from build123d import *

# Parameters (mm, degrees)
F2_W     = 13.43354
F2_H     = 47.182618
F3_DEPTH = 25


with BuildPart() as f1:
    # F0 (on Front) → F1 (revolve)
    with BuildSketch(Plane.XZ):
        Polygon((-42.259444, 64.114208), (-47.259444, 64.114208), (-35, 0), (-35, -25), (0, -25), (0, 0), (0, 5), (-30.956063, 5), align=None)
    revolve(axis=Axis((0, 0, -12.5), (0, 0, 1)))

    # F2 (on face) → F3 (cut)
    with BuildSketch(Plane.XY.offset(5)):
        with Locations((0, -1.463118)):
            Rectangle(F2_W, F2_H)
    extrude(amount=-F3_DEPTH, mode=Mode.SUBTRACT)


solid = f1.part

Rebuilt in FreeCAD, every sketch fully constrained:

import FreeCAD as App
import Part
import Sketcher
from FreeCAD import Vector
Q = App.Units.Quantity

doc = App.newDocument("Part")
body = doc.addObject("PartDesign::Body", "Body")

# Sketch on XZ plane
sketch1 = body.newObject("Sketcher::SketchObject", "Sketch")
sketch1.AttachmentSupport = (doc.getObject("XZ_Plane"), [""])
sketch1.MapMode = "FlatFace"
sketch1.addGeometry(Part.LineSegment(Vector(-42.259444, 64.114208, 0), Vector(-47.259444, 64.114208, 0)), False)
sketch1.addGeometry(Part.LineSegment(Vector(-47.259444, 64.114208, 0), Vector(-35, 0, 0)), False)
sketch1.addGeometry(Part.LineSegment(Vector(-35, 0, 0), Vector(-35, -25, 0)), False)
sketch1.addGeometry(Part.LineSegment(Vector(-35, -25, 0), Vector(0, -25, 0)), False)
sketch1.addGeometry(Part.LineSegment(Vector(0, -25, 0), Vector(0, 5, 0)), False)
sketch1.addGeometry(Part.LineSegment(Vector(0, 5, 0), Vector(-30.956063, 5, 0)), False)
sketch1.addGeometry(Part.LineSegment(Vector(-30.956063, 5, 0), Vector(-42.259444, 64.114208, 0)), False)
sketch1.addConstraint(Sketcher.Constraint("Coincident", 0, 2, 1, 1))
sketch1.addConstraint(Sketcher.Constraint("Coincident", 1, 2, 2, 1))
sketch1.addConstraint(Sketcher.Constraint("Coincident", 2, 2, 3, 1))
sketch1.addConstraint(Sketcher.Constraint("Coincident", 3, 2, 4, 1))
sketch1.addConstraint(Sketcher.Constraint("Coincident", 4, 2, 5, 1))
sketch1.addConstraint(Sketcher.Constraint("Coincident", 5, 2, 6, 1))
sketch1.addConstraint(Sketcher.Constraint("Coincident", 6, 2, 0, 1))
sketch1.addConstraint(Sketcher.Constraint("Horizontal", 0))
sketch1.addConstraint(Sketcher.Constraint("Vertical", 2))
sketch1.addConstraint(Sketcher.Constraint("Horizontal", 3))
sketch1.addConstraint(Sketcher.Constraint("Vertical", 4))
sketch1.addConstraint(Sketcher.Constraint("Horizontal", 5))
sketch1.addConstraint(Sketcher.Constraint("PointOnObject", 1, 2, -1))
sketch1.addConstraint(Sketcher.Constraint("PointOnObject", 3, 2, -2))
sketch1.addConstraint(Sketcher.Constraint("Parallel", 1, 6))
sketch1.addConstraint(Sketcher.Constraint("DistanceX", 0, 2, 0, 1, Q("5 mm")))
sketch1.addConstraint(Sketcher.Constraint("DistanceX", 3, 1, 3, 2, Q("35 mm")))
sketch1.addConstraint(Sketcher.Constraint("DistanceY", 2, 2, 2, 1, Q("25 mm")))
sketch1.addConstraint(Sketcher.Constraint("DistanceY", 4, 1, 4, 2, Q("30 mm")))
sketch1.addConstraint(Sketcher.Constraint("Distance", 6, Q("60.185181 mm")))
sketch1.addConstraint(Sketcher.Constraint("DistanceX", 5, 2, 5, 1, Q("30.956063 mm")))
revolution = body.newObject("PartDesign::Revolution", "Revolution")
revolution.Profile = sketch1
revolution.ReferenceAxis = (sketch1, ["V_Axis"])
revolution.Angle = 360

# Sketch on XY plane
sketch2 = body.newObject("Sketcher::SketchObject", "Sketch001")
sketch2.AttachmentSupport = (doc.getObject("XY_Plane"), [""])
sketch2.MapMode = "FlatFace"
sketch2.AttachmentOffset = App.Placement(Vector(0, 0, 5), App.Rotation())
sketch2.addGeometry(Part.LineSegment(Vector(-6.71677, 22.128191, 0), Vector(-6.71677, -25.054427, 0)), False)
sketch2.addGeometry(Part.LineSegment(Vector(-6.71677, -25.054427, 0), Vector(6.71677, -25.054427, 0)), False)
sketch2.addGeometry(Part.LineSegment(Vector(6.71677, -25.054427, 0), Vector(6.71677, 22.128191, 0)), False)
sketch2.addGeometry(Part.LineSegment(Vector(6.71677, 22.128191, 0), Vector(-6.71677, 22.128191, 0)), False)
sketch2.addConstraint(Sketcher.Constraint("Coincident", 0, 2, 1, 1))
sketch2.addConstraint(Sketcher.Constraint("Coincident", 1, 2, 2, 1))
sketch2.addConstraint(Sketcher.Constraint("Coincident", 2, 2, 3, 1))
sketch2.addConstraint(Sketcher.Constraint("Coincident", 3, 2, 0, 1))
sketch2.addConstraint(Sketcher.Constraint("Vertical", 0))
sketch2.addConstraint(Sketcher.Constraint("Horizontal", 1))
sketch2.addConstraint(Sketcher.Constraint("Vertical", 2))
sketch2.addConstraint(Sketcher.Constraint("Horizontal", 3))
sketch2.addConstraint(Sketcher.Constraint("DistanceX", 1, 1, 1, 2, Q("13.43354 mm")))
sketch2.addConstraint(Sketcher.Constraint("DistanceY", 0, 2, 0, 1, Q("47.182618 mm")))
sketch2.addConstraint(Sketcher.Constraint("DistanceX", 0, 2, -1, 1, Q("6.71677 mm")))
sketch2.addConstraint(Sketcher.Constraint("DistanceY", -1, 1, 2, 2, Q("22.128191 mm")))
pocket1 = body.newObject("PartDesign::Pocket", "Pocket")
pocket1.Profile = sketch2
pocket1.Length = 25

doc.recompute()
